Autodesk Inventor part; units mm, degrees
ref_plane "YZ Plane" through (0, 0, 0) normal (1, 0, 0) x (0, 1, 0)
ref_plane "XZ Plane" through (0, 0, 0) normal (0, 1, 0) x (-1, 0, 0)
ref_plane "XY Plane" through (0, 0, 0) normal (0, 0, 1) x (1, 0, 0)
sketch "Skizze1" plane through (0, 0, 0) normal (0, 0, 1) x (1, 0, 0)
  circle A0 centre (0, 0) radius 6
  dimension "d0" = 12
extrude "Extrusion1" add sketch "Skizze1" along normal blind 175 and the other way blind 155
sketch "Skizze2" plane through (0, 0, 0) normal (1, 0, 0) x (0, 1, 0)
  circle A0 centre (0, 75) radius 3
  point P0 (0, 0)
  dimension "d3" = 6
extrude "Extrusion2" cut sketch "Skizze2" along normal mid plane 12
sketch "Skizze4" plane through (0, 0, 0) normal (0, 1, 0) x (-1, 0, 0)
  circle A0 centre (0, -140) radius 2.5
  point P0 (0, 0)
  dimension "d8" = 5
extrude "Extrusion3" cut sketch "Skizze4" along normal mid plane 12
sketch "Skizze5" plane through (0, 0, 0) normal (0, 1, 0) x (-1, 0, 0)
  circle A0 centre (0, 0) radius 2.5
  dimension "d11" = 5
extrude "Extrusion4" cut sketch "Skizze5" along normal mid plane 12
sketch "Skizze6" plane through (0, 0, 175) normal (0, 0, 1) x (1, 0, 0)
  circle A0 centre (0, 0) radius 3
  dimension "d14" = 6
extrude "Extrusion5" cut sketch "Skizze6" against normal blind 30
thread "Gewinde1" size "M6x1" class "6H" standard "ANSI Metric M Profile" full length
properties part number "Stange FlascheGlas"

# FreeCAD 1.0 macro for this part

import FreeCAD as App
import Part
import Sketcher

doc = App.newDocument("Part")
params = doc.addObject("Spreadsheet::Sheet", "Params")
for row, (alias, value) in enumerate([
    ("sketch1_diameter", "12 mm"),
    ("pad1_length", "175 mm"),
    ("pad1_length2", "155 mm"),
    ("sketch2_diameter", "6 mm"),
    ("pocket1_length", "12 mm"),
    ("sketch3_diameter", "5 mm"),
    ("pocket2_length", "12 mm"),
    ("sketch4_diameter", "5 mm"),
    ("pocket3_length", "12 mm"),
    ("sketch5_diameter", "6 mm"),
    ("pocket4_length", "30 mm"),
], start=1):
    params.set(f"A{row}", alias)
    params.set(f"B{row}", "=" + value)
    params.setAlias(f"B{row}", alias)

body = doc.addObject("PartDesign::Body", "Body")

# Sketch on XY plane
sketch1 = doc.addObject("Sketcher::SketchObject", "Sketch")
body.addObject(sketch1)
sketch1.AttachmentSupport = (doc.XY_Plane, [""])
sketch1.MapMode = "FlatFace"
sketch1.addGeometry(Part.Circle(App.Vector(0, 0, 0), App.Vector(0, 0, 1), 6), False)
sketch1.addConstraint(Sketcher.Constraint("Coincident", 0, 3, -1, 1))
sketch1.addConstraint(Sketcher.Constraint("Diameter", 0, 12.0))
sketch1.setExpression("Constraints[1]", "Params.sketch1_diameter")
pad1 = doc.addObject("PartDesign::Pad", "Pad")
body.addObject(pad1)
pad1.Profile = sketch1
pad1.Type = "TwoLengths"
pad1.setExpression("Length", "Params.pad1_length")
pad1.setExpression("Length2", "Params.pad1_length2")

# Sketch on YZ plane
sketch2 = doc.addObject("Sketcher::SketchObject", "Sketch001")
body.addObject(sketch2)
sketch2.AttachmentSupport = (doc.YZ_Plane, [""])
sketch2.MapMode = "FlatFace"
sketch2.addGeometry(Part.Circle(App.Vector(0, 75, 0), App.Vector(0, 0, 1), 3), False)
sketch2.addConstraint(Sketcher.Constraint("PointOnObject", 0, 3, -2))
sketch2.addConstraint(Sketcher.Constraint("Diameter", 0, 6.0))
sketch2.addConstraint(Sketcher.Constraint("DistanceY", -1, 1, 0, 3, 75.0))
sketch2.setExpression("Constraints[1]", "Params.sketch2_diameter")
pocket1 = doc.addObject("PartDesign::Pocket", "Pocket")
body.addObject(pocket1)
pocket1.Profile = sketch2
pocket1.setExpression("Length", "Params.pocket1_length")
pocket1.Midplane = True

# Sketch on XZ plane
sketch3 = doc.addObject("Sketcher::SketchObject", "Sketch002")
body.addObject(sketch3)
sketch3.AttachmentSupport = (doc.XZ_Plane, [""])
sketch3.MapMode = "FlatFace"
sketch3.addGeometry(Part.Circle(App.Vector(0, -140, 0), App.Vector(0, 0, 1), 2.5), False)
sketch3.addConstraint(Sketcher.Constraint("PointOnObject", 0, 3, -2))
sketch3.addConstraint(Sketcher.Constraint("Diameter", 0, 5.0))
sketch3.addConstraint(Sketcher.Constraint("DistanceY", 0, 3, -1, 1, 140.0))
sketch3.setExpression("Constraints[1]", "Params.sketch3_diameter")
pocket2 = doc.addObject("PartDesign::Pocket", "Pocket001")
body.addObject(pocket2)
pocket2.Profile = sketch3
pocket2.setExpression("Length", "Params.pocket2_length")
pocket2.Midplane = True

# Sketch on XZ plane
sketch4 = doc.addObject("Sketcher::SketchObject", "Sketch003")
body.addObject(sketch4)
sketch4.AttachmentSupport = (doc.XZ_Plane, [""])
sketch4.MapMode = "FlatFace"
sketch4.addGeometry(Part.Circle(App.Vector(0, 0, 0), App.Vector(0, 0, 1), 2.5), False)
sketch4.addConstraint(Sketcher.Constraint("Coincident", 0, 3, -1, 1))
sketch4.addConstraint(Sketcher.Constraint("Diameter", 0, 5.0))
sketch4.setExpression("Constraints[1]", "Params.sketch4_diameter")
pocket3 = doc.addObject("PartDesign::Pocket", "Pocket002")
body.addObject(pocket3)
pocket3.Profile = sketch4
pocket3.setExpression("Length", "Params.pocket3_length")
pocket3.Midplane = True

# Sketch on XY plane
sketch5 = doc.addObject("Sketcher::SketchObject", "Sketch004")
body.addObject(sketch5)
sketch5.AttachmentSupport = (doc.XY_Plane, [""])
sketch5.MapMode = "FlatFace"
sketch5.AttachmentOffset = App.Placement(App.Vector(0, 0, 175), App.Rotation())
sketch5.addGeometry(Part.Circle(App.Vector(0, 0, 0), App.Vector(0, 0, 1), 3), False)
sketch5.addConstraint(Sketcher.Constraint("Coincident", 0, 3, -1, 1))
sketch5.addConstraint(Sketcher.Constraint("Diameter", 0, 6.0))
sketch5.setExpression("Constraints[1]", "Params.sketch5_diameter")
pocket4 = doc.addObject("PartDesign::Pocket", "Pocket003")
body.addObject(pocket4)
pocket4.Profile = sketch5
pocket4.setExpression("Length", "Params.pocket4_length")

doc.recompute()
